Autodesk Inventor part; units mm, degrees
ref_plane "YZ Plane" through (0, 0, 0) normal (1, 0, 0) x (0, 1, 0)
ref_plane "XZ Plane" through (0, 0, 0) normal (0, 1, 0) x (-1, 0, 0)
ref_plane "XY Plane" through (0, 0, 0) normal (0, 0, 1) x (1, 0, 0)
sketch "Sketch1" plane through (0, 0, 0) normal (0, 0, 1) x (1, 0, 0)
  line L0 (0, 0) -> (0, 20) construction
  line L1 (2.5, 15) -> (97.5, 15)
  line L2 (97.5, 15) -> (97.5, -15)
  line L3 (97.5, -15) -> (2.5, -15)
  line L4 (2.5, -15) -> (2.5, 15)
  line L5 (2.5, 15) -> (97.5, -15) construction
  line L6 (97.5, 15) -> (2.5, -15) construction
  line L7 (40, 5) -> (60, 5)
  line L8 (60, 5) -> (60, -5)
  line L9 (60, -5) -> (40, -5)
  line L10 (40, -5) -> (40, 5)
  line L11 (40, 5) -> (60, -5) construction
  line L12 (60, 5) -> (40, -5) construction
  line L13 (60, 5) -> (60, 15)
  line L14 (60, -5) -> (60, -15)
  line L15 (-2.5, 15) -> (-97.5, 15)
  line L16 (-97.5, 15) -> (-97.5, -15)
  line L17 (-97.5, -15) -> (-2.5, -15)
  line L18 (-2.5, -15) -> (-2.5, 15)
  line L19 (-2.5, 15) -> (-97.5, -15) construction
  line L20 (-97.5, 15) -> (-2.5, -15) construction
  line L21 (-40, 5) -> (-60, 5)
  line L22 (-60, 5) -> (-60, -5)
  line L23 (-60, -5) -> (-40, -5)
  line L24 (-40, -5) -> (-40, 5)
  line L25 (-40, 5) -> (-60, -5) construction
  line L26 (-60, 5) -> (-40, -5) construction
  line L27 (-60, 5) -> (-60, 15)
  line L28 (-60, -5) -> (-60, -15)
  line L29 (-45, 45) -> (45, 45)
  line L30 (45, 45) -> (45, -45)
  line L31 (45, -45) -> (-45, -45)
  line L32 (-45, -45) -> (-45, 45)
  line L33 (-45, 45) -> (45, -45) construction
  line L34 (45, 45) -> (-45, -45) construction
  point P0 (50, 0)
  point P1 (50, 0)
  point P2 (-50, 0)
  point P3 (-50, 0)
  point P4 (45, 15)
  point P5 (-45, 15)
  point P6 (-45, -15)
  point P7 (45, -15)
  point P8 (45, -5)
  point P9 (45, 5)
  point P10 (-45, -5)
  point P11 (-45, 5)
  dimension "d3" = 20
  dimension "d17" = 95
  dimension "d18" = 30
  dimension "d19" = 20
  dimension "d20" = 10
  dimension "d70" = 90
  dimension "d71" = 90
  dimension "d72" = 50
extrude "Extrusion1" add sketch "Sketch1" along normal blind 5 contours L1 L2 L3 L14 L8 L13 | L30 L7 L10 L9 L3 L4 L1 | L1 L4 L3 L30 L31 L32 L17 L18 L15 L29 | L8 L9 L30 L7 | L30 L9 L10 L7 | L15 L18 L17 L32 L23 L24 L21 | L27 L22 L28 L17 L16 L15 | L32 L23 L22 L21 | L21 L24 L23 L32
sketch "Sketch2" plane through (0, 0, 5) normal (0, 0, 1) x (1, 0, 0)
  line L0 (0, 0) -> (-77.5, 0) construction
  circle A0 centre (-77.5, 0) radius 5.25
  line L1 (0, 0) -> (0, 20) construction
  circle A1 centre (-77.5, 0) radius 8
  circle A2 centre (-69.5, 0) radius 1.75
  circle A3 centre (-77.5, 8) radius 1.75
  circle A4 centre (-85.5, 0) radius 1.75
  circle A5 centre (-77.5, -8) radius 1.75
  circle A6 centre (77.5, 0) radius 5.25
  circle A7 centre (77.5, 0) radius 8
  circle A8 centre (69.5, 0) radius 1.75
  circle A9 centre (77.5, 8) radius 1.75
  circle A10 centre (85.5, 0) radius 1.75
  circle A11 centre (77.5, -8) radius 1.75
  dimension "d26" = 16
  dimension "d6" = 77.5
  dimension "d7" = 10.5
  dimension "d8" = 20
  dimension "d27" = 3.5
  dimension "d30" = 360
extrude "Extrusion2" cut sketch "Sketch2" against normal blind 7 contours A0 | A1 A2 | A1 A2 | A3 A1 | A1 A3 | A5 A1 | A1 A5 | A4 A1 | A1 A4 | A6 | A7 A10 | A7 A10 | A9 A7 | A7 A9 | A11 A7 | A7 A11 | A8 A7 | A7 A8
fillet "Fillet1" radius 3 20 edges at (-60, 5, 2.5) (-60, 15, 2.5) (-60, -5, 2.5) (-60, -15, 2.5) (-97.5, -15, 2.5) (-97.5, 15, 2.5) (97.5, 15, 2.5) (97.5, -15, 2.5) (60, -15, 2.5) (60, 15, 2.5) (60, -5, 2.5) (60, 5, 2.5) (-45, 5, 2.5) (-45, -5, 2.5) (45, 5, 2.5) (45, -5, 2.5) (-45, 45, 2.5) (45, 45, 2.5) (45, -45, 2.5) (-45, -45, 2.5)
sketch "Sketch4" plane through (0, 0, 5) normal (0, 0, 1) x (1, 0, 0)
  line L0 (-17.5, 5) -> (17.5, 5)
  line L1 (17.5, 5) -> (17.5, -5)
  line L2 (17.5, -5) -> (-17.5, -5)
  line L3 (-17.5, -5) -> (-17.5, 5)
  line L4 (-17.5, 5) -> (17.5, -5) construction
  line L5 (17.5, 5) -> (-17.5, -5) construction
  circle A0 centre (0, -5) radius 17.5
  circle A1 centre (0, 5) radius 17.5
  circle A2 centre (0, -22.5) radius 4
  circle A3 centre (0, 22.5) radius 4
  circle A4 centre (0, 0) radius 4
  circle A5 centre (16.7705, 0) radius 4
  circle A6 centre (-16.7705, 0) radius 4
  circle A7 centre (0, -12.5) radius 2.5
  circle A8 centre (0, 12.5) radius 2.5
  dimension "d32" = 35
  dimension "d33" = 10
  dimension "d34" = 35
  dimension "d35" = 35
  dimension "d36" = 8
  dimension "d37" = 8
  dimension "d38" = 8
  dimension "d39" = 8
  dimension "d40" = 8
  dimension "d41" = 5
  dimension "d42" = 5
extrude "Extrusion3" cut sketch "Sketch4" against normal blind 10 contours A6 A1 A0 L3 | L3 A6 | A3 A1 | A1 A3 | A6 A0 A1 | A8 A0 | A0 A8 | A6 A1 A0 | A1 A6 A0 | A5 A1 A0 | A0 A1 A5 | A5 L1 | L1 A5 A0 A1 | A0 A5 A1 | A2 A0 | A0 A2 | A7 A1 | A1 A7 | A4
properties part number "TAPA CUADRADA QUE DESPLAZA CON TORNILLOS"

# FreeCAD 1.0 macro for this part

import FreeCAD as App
import Part
import Sketcher
Q = App.Units.Quantity


def edges_at(feature, points):
    """Names of the edges that pass closest to the given points."""
    edges = feature.Shape.Edges
    near = lambda p: min(range(len(edges)), key=lambda i: edges[i].distToShape(Part.Vertex(*p))[0])
    return sorted({f"Edge{near(p) + 1}" for p in points})

doc = App.newDocument("Part")
params = doc.addObject("Spreadsheet::Sheet", "Params")
for row, (alias, value) in enumerate([
    ("sketch1_width", "90 mm"),
    ("sketch1_height", "10 mm"),
    ("sketch1_height2", "30 mm"),
    ("sketch1_width2", "15 mm"),
    ("sketch1_width3", "37.5 mm"),
    ("pad1_length", "5 mm"),
    ("sketch2_diameter", "10.5 mm"),
    ("sketch2_diameter2", "3.5 mm"),
    ("pocket1_length", "7 mm"),
    ("fillet_radius", "3 mm"),
    ("sketch3_diameter", "8 mm"),
    ("sketch3_diameter2", "5 mm"),
    ("pocket2_length", "10 mm"),
], start=1):
    params.set(f"A{row}", alias)
    params.set(f"B{row}", "=" + value)
    params.setAlias(f"B{row}", alias)

body = doc.addObject("PartDesign::Body", "Body")

sketch1 = body.newObject("Sketcher::SketchObject", "Sketch")
sketch1.AttachmentSupport = (doc.getObject("XY_Plane"), [""])
sketch1.MapMode = "FlatFace"
sketch1.addGeometry(Part.LineSegment(App.Vector(98, 15, 0), App.Vector(60, 15, 0)), False)
sketch1.addGeometry(Part.LineSegment(App.Vector(60, 15, 0), App.Vector(60, 5, 0)), False)
sketch1.addGeometry(Part.LineSegment(App.Vector(60, 5, 0), App.Vector(45, 5, 0)), False)
sketch1.addGeometry(Part.LineSegment(App.Vector(45, 5, 0), App.Vector(45, 45, 0)), False)
sketch1.addGeometry(Part.LineSegment(App.Vector(45, 45, 0), App.Vector(-45, 45, 0)), False)
sketch1.addGeometry(Part.LineSegment(App.Vector(-45, 45, 0), App.Vector(-45, 5, 0)), False)
sketch1.addGeometry(Part.LineSegment(App.Vector(-45, 5, 0), App.Vector(-60, 5, 0)), False)
sketch1.addGeometry(Part.LineSegment(App.Vector(-60, 5, 0), App.Vector(-60, 15, 0)), False)
sketch1.addGeometry(Part.LineSegment(App.Vector(-60, 15, 0), App.Vector(-98, 15, 0)), False)
sketch1.addGeometry(Part.LineSegment(App.Vector(-98, 15, 0), App.Vector(-98, -15, 0)), False)
sketch1.addGeometry(Part.LineSegment(App.Vector(-98, -15, 0), App.Vector(-60, -15, 0)), False)
sketch1.addGeometry(Part.LineSegment(App.Vector(-60, -15, 0), App.Vector(-60, -5, 0)), False)
sketch1.addGeometry(Part.LineSegment(App.Vector(-60, -5, 0), App.Vector(-45, -5, 0)), False)
sketch1.addGeometry(Part.LineSegment(App.Vector(-45, -5, 0), App.Vector(-45, -45, 0)), False)
sketch1.addGeometry(Part.LineSegment(App.Vector(-45, -45, 0), App.Vector(45, -45, 0)), False)
sketch1.addGeometry(Part.LineSegment(App.Vector(45, -45, 0), App.Vector(45, -5, 0)), False)
sketch1.addGeometry(Part.LineSegment(App.Vector(45, -5, 0), App.Vector(60, -5, 0)), False)
sketch1.addGeometry(Part.LineSegment(App.Vector(60, -5, 0), App.Vector(60, -15, 0)), False)
sketch1.addGeometry(Part.LineSegment(App.Vector(60, -15, 0), App.Vector(98, -15, 0)), False)
sketch1.addGeometry(Part.LineSegment(App.Vector(98, -15, 0), App.Vector(98, 15, 0)), False)
sketch1.addConstraint(Sketcher.Constraint("Coincident", 0, 2, 1, 1))
sketch1.addConstraint(Sketcher.Constraint("Coincident", 1, 2, 2, 1))
sketch1.addConstraint(Sketcher.Constraint("Coincident", 2, 2, 3, 1))
sketch1.addConstraint(Sketcher.Constraint("Coincident", 3, 2, 4, 1))
sketch1.addConstraint(Sketcher.Constraint("Coincident", 4, 2, 5, 1))
sketch1.addConstraint(Sketcher.Constraint("Coincident", 5, 2, 6, 1))
sketch1.addConstraint(Sketcher.Constraint("Coincident", 6, 2, 7, 1))
sketch1.addConstraint(Sketcher.Constraint("Coincident", 7, 2, 8, 1))
sketch1.addConstraint(Sketcher.Constraint("Coincident", 8, 2, 9, 1))
sketch1.addConstraint(Sketcher.Constraint("Coincident", 9, 2, 10, 1))
sketch1.addConstraint(Sketcher.Constraint("Coincident", 10, 2, 11, 1))
sketch1.addConstraint(Sketcher.Constraint("Coincident", 11, 2, 12, 1))
sketch1.addConstraint(Sketcher.Constraint("Coincident", 12, 2, 13, 1))
sketch1.addConstraint(Sketcher.Constraint("Coincident", 13, 2, 14, 1))
sketch1.addConstraint(Sketcher.Constraint("Coincident", 14, 2, 15, 1))
sketch1.addConstraint(Sketcher.Constraint("Coincident", 15, 2, 16, 1))
sketch1.addConstraint(Sketcher.Constraint("Coincident", 16, 2, 17, 1))
sketch1.addConstraint(Sketcher.Constraint("Coincident", 17, 2, 18, 1))
sketch1.addConstraint(Sketcher.Constraint("Coincident", 18, 2, 19, 1))
sketch1.addConstraint(Sketcher.Constraint("Coincident", 19, 2, 0, 1))
sketch1.addConstraint(Sketcher.Constraint("Horizontal", 0))
sketch1.addConstraint(Sketcher.Constraint("Vertical", 1))
sketch1.addConstraint(Sketcher.Constraint("Horizontal", 2))
sketch1.addConstraint(Sketcher.Constraint("Vertical", 3))
sketch1.addConstraint(Sketcher.Constraint("Horizontal", 4))
sketch1.addConstraint(Sketcher.Constraint("Vertical", 5))
sketch1.addConstraint(Sketcher.Constraint("Horizontal", 6))
sketch1.addConstraint(Sketcher.Constraint("Vertical", 7))
sketch1.addConstraint(Sketcher.Constraint("Horizontal", 8))
sketch1.addConstraint(Sketcher.Constraint("Vertical", 9))
sketch1.addConstraint(Sketcher.Constraint("Horizontal", 10))
sketch1.addConstraint(Sketcher.Constraint("Vertical", 11))
sketch1.addConstraint(Sketcher.Constraint("Horizontal", 12))
sketch1.addConstraint(Sketcher.Constraint("Vertical", 13))
sketch1.addConstraint(Sketcher.Constraint("Horizontal", 14))
sketch1.addConstraint(Sketcher.Constraint("Vertical", 15))
sketch1.addConstraint(Sketcher.Constraint("Horizontal", 16))
sketch1.addConstraint(Sketcher.Constraint("Vertical", 17))
sketch1.addConstraint(Sketcher.Constraint("Horizontal", 18))
sketch1.addConstraint(Sketcher.Constraint("Vertical", 19))
sketch1.addConstraint(Sketcher.Constraint("Symmetric", 0, 2, 10, 2, -1, 1))
sketch1.addConstraint(Sketcher.Constraint("Symmetric", 2, 2, 12, 2, -1, 1))
sketch1.addConstraint(Sketcher.Constraint("Symmetric", 4, 2, 14, 2, -1, 1))
sketch1.addConstraint(Sketcher.Constraint("Symmetric", 6, 2, 16, 2, -1, 1))
sketch1.addConstraint(Sketcher.Constraint("Symmetric", 8, 2, 18, 2, -1, 1))
sketch1.addConstraint(Sketcher.Constraint("Symmetric", 2, 2, 5, 2, -2))
sketch1.addConstraint(Sketcher.Constraint("Symmetric", 0, 2, 7, 2, -2))
sketch1.addConstraint(Sketcher.Constraint("DistanceX", 4, 2, 4, 1, Q("90 mm")))
sketch1.addConstraint(Sketcher.Constraint("DistanceY", 1, 2, 1, 1, Q("10 mm")))
sketch1.addConstraint(Sketcher.Constraint("DistanceY", 9, 2, 9, 1, Q("30 mm")))
sketch1.addConstraint(Sketcher.Constraint("DistanceY", 0, 2, 3, 2, Q("30 mm")))
sketch1.addConstraint(Sketcher.Constraint("DistanceX", 2, 2, 2, 1, Q("15 mm")))
sketch1.addConstraint(Sketcher.Constraint("DistanceX", 0, 2, 0, 1, Q("37.5 mm")))
sketch1.setExpression("Constraints[47]", "Params.sketch1_width")
sketch1.setExpression("Constraints[48]", "Params.sketch1_height")
sketch1.setExpression("Constraints[49]", "Params.sketch1_height2")
sketch1.setExpression("Constraints[51]", "Params.sketch1_width2")
sketch1.setExpression("Constraints[52]", "Params.sketch1_width3")
pad1 = body.newObject("PartDesign::Pad", "Pad")
pad1.Profile = sketch1
pad1.setExpression("Length", "Params.pad1_length")

sketch2 = body.newObject("Sketcher::SketchObject", "Sketch001")
sketch2.AttachmentSupport = (doc.getObject("XY_Plane"), [""])
sketch2.MapMode = "FlatFace"
sketch2.AttachmentOffset = App.Placement(App.Vector(0, 0, 5), App.Rotation())
sketch2.addGeometry(Part.Circle(App.Vector(-77.5, 0, 0), App.Vector(0, 0, 1), 5.2), False)
sketch2.addGeometry(Part.Circle(App.Vector(-69.5, 0, 0), App.Vector(0, 0, 1), 1.8), False)
sketch2.addGeometry(Part.Circle(App.Vector(-77.5, 8, 0), App.Vector(0, 0, 1), 1.8), False)
sketch2.addGeometry(Part.Circle(App.Vector(-77.5, -8, 0), App.Vector(0, 0, 1), 1.8), False)
sketch2.addGeometry(Part.Circle(App.Vector(-85.5, 0, 0), App.Vector(0, 0, 1), 1.8), False)
sketch2.addGeometry(Part.Circle(App.Vector(77.5, 0, 0), App.Vector(0, 0, 1), 5.2), False)
sketch2.addGeometry(Part.Circle(App.Vector(85.5, 0, 0), App.Vector(0, 0, 1), 1.8), False)
sketch2.addGeometry(Part.Circle(App.Vector(77.5, 8, 0), App.Vector(0, 0, 1), 1.8), False)
sketch2.addGeometry(Part.Circle(App.Vector(77.5, -8, 0), App.Vector(0, 0, 1), 1.8), False)
sketch2.addGeometry(Part.Circle(App.Vector(69.5, 0, 0), App.Vector(0, 0, 1), 1.8), False)
sketch2.addConstraint(Sketcher.Constraint("Equal", 1, 2))
sketch2.addConstraint(Sketcher.Constraint("Equal", 2, 3))
sketch2.addConstraint(Sketcher.Constraint("Equal", 3, 4))
sketch2.addConstraint(Sketcher.Constraint("Equal", 0, 5))
sketch2.addConstraint(Sketcher.Constraint("Equal", 4, 6))
sketch2.addConstraint(Sketcher.Constraint("Equal", 6, 7))
sketch2.addConstraint(Sketcher.Constraint("Equal", 7, 8))
sketch2.addConstraint(Sketcher.Constraint("Equal", 8, 9))
sketch2.addConstraint(Sketcher.Constraint("Symmetric", 0, 3, 5, 3, -1, 1))
sketch2.addConstraint(Sketcher.Constraint("Symmetric", 4, 3, 6, 3, -1, 1))
sketch2.addConstraint(Sketcher.Constraint("Symmetric", 3, 3, 7, 3, -1, 1))
sketch2.addConstraint(Sketcher.Constraint("Symmetric", 2, 3, 8, 3, -1, 1))
sketch2.addConstraint(Sketcher.Constraint("Symmetric", 1, 3, 9, 3, -1, 1))
sketch2.addConstraint(Sketcher.Constraint("Symmetric", 2, 3, 7, 3, -2))
sketch2.addConstraint(Sketcher.Constraint("PointOnObject", 0, 3, -1))
sketch2.addConstraint(Sketcher.Constraint("PointOnObject", 1, 3, -1))
sketch2.addConstraint(Sketcher.Constraint("PointOnObject", 4, 3, -1))
sketch2.addConstraint(Sketcher.Constraint("Vertical", 0, 3, 2, 3))
sketch2.addConstraint(Sketcher.Constraint("Diameter", 0, Q("10.5 mm")))
sketch2.addConstraint(Sketcher.Constraint("Diameter", 1, Q("3.5 mm")))
sketch2.addConstraint(Sketcher.Constraint("DistanceY", 3, 3, 2, 3, Q("16 mm")))
sketch2.addConstraint(Sketcher.Constraint("DistanceX", 4, 3, 1, 3, Q("16 mm")))
sketch2.addConstraint(Sketcher.Constraint("DistanceX", 0, 3, -1, 1, Q("77.5 mm")))
sketch2.addConstraint(Sketcher.Constraint("DistanceX", 0, 3, 1, 3, Q("8 mm")))
sketch2.setExpression("Constraints[18]", "Params.sketch2_diameter")
sketch2.setExpression("Constraints[19]", "Params.sketch2_diameter2")
pocket1 = body.newObject("PartDesign::Pocket", "Pocket")
pocket1.Profile = sketch2
pocket1.setExpression("Length", "Params.pocket1_length")
doc.recompute()

fillet = body.newObject("PartDesign::Fillet", "Fillet")
fillet.Base = (pocket1, edges_at(pocket1, [
    (-60, 5, 2.5),
    (-60, 15, 2.5),
    (-60, -5, 2.5),
    (-60, -15, 2.5),
    (-97.5, -15, 2.5),
    (-97.5, 15, 2.5),
    (97.5, 15, 2.5),
    (97.5, -15, 2.5),
    (60, -15, 2.5),
    (60, 15, 2.5),
    (60, -5, 2.5),
    (60, 5, 2.5),
    (-45, 5, 2.5),
    (-45, -5, 2.5),
    (45, 5, 2.5),
    (45, -5, 2.5),
    (-45, 45, 2.5),
    (45, 45, 2.5),
    (45, -45, 2.5),
    (-45, -45, 2.5),
]))
fillet.setExpression("Radius", "Params.fillet_radius")

sketch3 = body.newObject("Sketcher::SketchObject", "Sketch002")
sketch3.AttachmentSupport = (doc.getObject("XY_Plane"), [""])
sketch3.MapMode = "FlatFace"
sketch3.AttachmentOffset = App.Placement(App.Vector(0, 0, 5), App.Rotation())
sketch3.addGeometry(Part.Circle(App.Vector(-16.8, 0, 0), App.Vector(0, 0, 1), 4), False)
sketch3.addGeometry(Part.Circle(App.Vector(0, 22.5, 0), App.Vector(0, 0, 1), 4), False)
sketch3.addGeometry(Part.Circle(App.Vector(0, 12.5, 0), App.Vector(0, 0, 1), 2.5), False)
sketch3.addGeometry(Part.Circle(App.Vector(16.8, 0, 0), App.Vector(0, 0, 1), 4), False)
sketch3.addGeometry(Part.Circle(App.Vector(0, -22.5, 0), App.Vector(0, 0, 1), 4), False)
sketch3.addGeometry(Part.Circle(App.Vector(0, -12.5, 0), App.Vector(0, 0, 1), 2.5), False)
sketch3.addGeometry(Part.Circle(App.Vector(0, 0, 0), App.Vector(0, 0, 1), 4), False)
sketch3.addConstraint(Sketcher.Constraint("Coincident", 6, 3, -1, 1))
sketch3.addConstraint(Sketcher.Constraint("Equal", 0, 1))
sketch3.addConstraint(Sketcher.Constraint("Equal", 1, 3))
sketch3.addConstraint(Sketcher.Constraint("Equal", 3, 4))
sketch3.addConstraint(Sketcher.Constraint("Equal", 2, 5))
sketch3.addConstraint(Sketcher.Constraint("Equal", 4, 6))
sketch3.addConstraint(Sketcher.Constraint("Symmetric", 0, 3, 3, 3, -1, 1))
sketch3.addConstraint(Sketcher.Constraint("Symmetric", 1, 3, 4, 3, -1, 1))
sketch3.addConstraint(Sketcher.Constraint("Symmetric", 2, 3, 5, 3, -1, 1))
sketch3.addConstraint(Sketcher.Constraint("PointOnObject", 0, 3, -1))
sketch3.addConstraint(Sketcher.Constraint("PointOnObject", 1, 3, -2))
sketch3.addConstraint(Sketcher.Constraint("PointOnObject", 2, 3, -2))
sketch3.addConstraint(Sketcher.Constraint("Diameter", 0, Q("8 mm")))
sketch3.addConstraint(Sketcher.Constraint("Diameter", 2, Q("5 mm")))
sketch3.addConstraint(Sketcher.Constraint("DistanceY", 2, 3, 1, 3, Q("10 mm")))
sketch3.addConstraint(Sketcher.Constraint("DistanceY", 4, 3, 2, 3, Q("35 mm")))
sketch3.addConstraint(Sketcher.Constraint("DistanceX", 0, 3, 3, 3, Q("33.541 mm")))
sketch3.setExpression("Constraints[12]", "Params.sketch3_diameter")
sketch3.setExpression("Constraints[13]", "Params.sketch3_diameter2")
pocket2 = body.newObject("PartDesign::Pocket", "Pocket001")
pocket2.Profile = sketch3
pocket2.setExpression("Length", "Params.pocket2_length")

doc.recompute()
